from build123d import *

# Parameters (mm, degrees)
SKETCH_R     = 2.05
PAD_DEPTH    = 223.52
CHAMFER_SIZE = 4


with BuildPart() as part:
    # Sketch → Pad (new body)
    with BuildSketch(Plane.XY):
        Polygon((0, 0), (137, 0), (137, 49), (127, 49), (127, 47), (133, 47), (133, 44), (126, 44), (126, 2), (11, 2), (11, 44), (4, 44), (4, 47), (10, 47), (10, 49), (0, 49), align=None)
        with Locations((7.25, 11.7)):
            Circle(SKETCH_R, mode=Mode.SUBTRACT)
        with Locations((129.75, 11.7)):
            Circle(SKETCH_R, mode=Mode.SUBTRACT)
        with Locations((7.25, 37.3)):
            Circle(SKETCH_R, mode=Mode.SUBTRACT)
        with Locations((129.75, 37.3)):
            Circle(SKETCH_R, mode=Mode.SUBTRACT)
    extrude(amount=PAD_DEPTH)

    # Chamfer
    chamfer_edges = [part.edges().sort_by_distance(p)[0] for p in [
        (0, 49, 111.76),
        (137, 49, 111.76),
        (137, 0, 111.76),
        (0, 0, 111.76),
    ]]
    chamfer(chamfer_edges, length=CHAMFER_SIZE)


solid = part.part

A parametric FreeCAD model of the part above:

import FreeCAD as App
import Part
import Sketcher

V = App.Vector


def edges_at(feature, points):
    """Names of the edges that pass closest to the given points."""
    edges = feature.Shape.Edges
    near = lambda p: min(range(len(edges)), key=lambda i: edges[i].distToShape(Part.Vertex(*p))[0])
    return sorted({f"Edge{near(p) + 1}" for p in points})

doc = App.newDocument("Part")
body = doc.addObject("PartDesign::Body", "Body")

# Sketch on XY plane
sketch1 = doc.addObject("Sketcher::SketchObject", "Sketch")
body.addObject(sketch1)
sketch1.AttachmentSupport = (doc.XY_Plane, [""])
sketch1.MapMode = "FlatFace"
sketch1.addGeometry(Part.LineSegment(V(0, 0, 0), V(137, 0, 0)), False)
sketch1.addGeometry(Part.LineSegment(V(137, 0, 0), V(137, 49, 0)), False)
sketch1.addGeometry(Part.LineSegment(V(137, 49, 0), V(127, 49, 0)), False)
sketch1.addGeometry(Part.LineSegment(V(127, 49, 0), V(127, 47, 0)), False)
sketch1.addGeometry(Part.LineSegment(V(127, 47, 0), V(133, 47, 0)), False)
sketch1.addGeometry(Part.LineSegment(V(133, 47, 0), V(133, 44, 0)), False)
sketch1.addGeometry(Part.LineSegment(V(133, 44, 0), V(126, 44, 0)), False)
sketch1.addGeometry(Part.LineSegment(V(126, 44, 0), V(126, 2, 0)), False)
sketch1.addGeometry(Part.LineSegment(V(126, 2, 0), V(11, 2, 0)), False)
sketch1.addGeometry(Part.LineSegment(V(11, 2, 0), V(11, 44, 0)), False)
sketch1.addGeometry(Part.LineSegment(V(11, 44, 0), V(4, 44, 0)), False)
sketch1.addGeometry(Part.LineSegment(V(4, 44, 0), V(4, 47, 0)), False)
sketch1.addGeometry(Part.LineSegment(V(4, 47, 0), V(10, 47, 0)), False)
sketch1.addGeometry(Part.LineSegment(V(10, 47, 0), V(10, 49, 0)), False)
sketch1.addGeometry(Part.LineSegment(V(10, 49, 0), V(0, 49, 0)), False)
sketch1.addGeometry(Part.LineSegment(V(0, 49, 0), V(0, 0, 0)), False)
sketch1.addGeometry(Part.Circle(V(7.2, 11.7, 0), V(0, 0, 1), 2), False)
sketch1.addGeometry(Part.Circle(V(129.8, 11.7, 0), V(0, 0, 1), 2), False)
sketch1.addGeometry(Part.Circle(V(7.2, 37.3, 0), V(0, 0, 1), 2), False)
sketch1.addGeometry(Part.Circle(V(129.8, 37.3, 0), V(0, 0, 1), 2), False)
sketch1.addConstraint(Sketcher.Constraint("Coincident", 0, 2, 1, 1))
sketch1.addConstraint(Sketcher.Constraint("Coincident", 1, 2, 2, 1))
sketch1.addConstraint(Sketcher.Constraint("Coincident", 2, 2, 3, 1))
sketch1.addConstraint(Sketcher.Constraint("Coincident", 3, 2, 4, 1))
sketch1.addConstraint(Sketcher.Constraint("Coincident", 4, 2, 5, 1))
sketch1.addConstraint(Sketcher.Constraint("Coincident", 5, 2, 6, 1))
sketch1.addConstraint(Sketcher.Constraint("Coincident", 6, 2, 7, 1))
sketch1.addConstraint(Sketcher.Constraint("Coincident", 7, 2, 8, 1))
sketch1.addConstraint(Sketcher.Constraint("Coincident", 8, 2, 9, 1))
sketch1.addConstraint(Sketcher.Constraint("Coincident", 9, 2, 10, 1))
sketch1.addConstraint(Sketcher.Constraint("Coincident", 10, 2, 11, 1))
sketch1.addConstraint(Sketcher.Constraint("Coincident", 11, 2, 12, 1))
sketch1.addConstraint(Sketcher.Constraint("Coincident", 12, 2, 13, 1))
sketch1.addConstraint(Sketcher.Constraint("Coincident", 13, 2, 14, 1))
sketch1.addConstraint(Sketcher.Constraint("Coincident", 14, 2, 15, 1))
sketch1.addConstraint(Sketcher.Constraint("Coincident", 15, 2, 0, 1))
sketch1.addConstraint(Sketcher.Constraint("Horizontal", 0))
sketch1.addConstraint(Sketcher.Constraint("Vertical", 1))
sketch1.addConstraint(Sketcher.Constraint("Horizontal", 2))
sketch1.addConstraint(Sketcher.Constraint("Vertical", 3))
sketch1.addConstraint(Sketcher.Constraint("Horizontal", 4))
sketch1.addConstraint(Sketcher.Constraint("Vertical", 5))
sketch1.addConstraint(Sketcher.Constraint("Horizontal", 6))
sketch1.addConstraint(Sketcher.Constraint("Vertical", 7))
sketch1.addConstraint(Sketcher.Constraint("Horizontal", 8))
sketch1.addConstraint(Sketcher.Constraint("Vertical", 9))
sketch1.addConstraint(Sketcher.Constraint("Horizontal", 10))
sketch1.addConstraint(Sketcher.Constraint("Vertical", 11))
sketch1.addConstraint(Sketcher.Constraint("Horizontal", 12))
sketch1.addConstraint(Sketcher.Constraint("Vertical", 13))
sketch1.addConstraint(Sketcher.Constraint("Horizontal", 14))
sketch1.addConstraint(Sketcher.Constraint("Vertical", 15))
sketch1.addConstraint(Sketcher.Constraint("Coincident", 15, 2, -1, 1))
sketch1.addConstraint(Sketcher.Constraint("Equal", 16, 17))
sketch1.addConstraint(Sketcher.Constraint("Equal", 17, 18))
sketch1.addConstraint(Sketcher.Constraint("Equal", 18, 19))
sketch1.addConstraint(Sketcher.Constraint("Horizontal", 16, 3, 17, 3))
sketch1.addConstraint(Sketcher.Constraint("Horizontal", 18, 3, 19, 3))
sketch1.addConstraint(Sketcher.Constraint("Horizontal", 6, 2, 9, 2))
sketch1.addConstraint(Sketcher.Constraint("Horizontal", 4, 2, 11, 2))
sketch1.addConstraint(Sketcher.Constraint("Horizontal", 2, 2, 13, 2))
sketch1.addConstraint(Sketcher.Constraint("Vertical", 16, 3, 18, 3))
sketch1.addConstraint(Sketcher.Constraint("Vertical", 17, 3, 19, 3))
sketch1.addConstraint(Sketcher.Constraint("Equal", 6, 10))
sketch1.addConstraint(Sketcher.Constraint("Equal", 4, 12))
sketch1.addConstraint(Sketcher.Constraint("Equal", 2, 14))
sketch1.addConstraint(Sketcher.Constraint("Diameter", 16, 4.1))
sketch1.addConstraint(Sketcher.Constraint("DistanceX", 0, 1, 0, 2, 137.0))
sketch1.addConstraint(Sketcher.Constraint("DistanceX", 2, 2, 2, 1, 10.0))
sketch1.addConstraint(Sketcher.Constraint("DistanceX", 4, 1, 4, 2, 6.0))
sketch1.addConstraint(Sketcher.Constraint("DistanceX", 6, 2, 6, 1, 7.0))
sketch1.addConstraint(Sketcher.Constraint("DistanceY", 1, 1, 1, 2, 49.0))
sketch1.addConstraint(Sketcher.Constraint("DistanceY", 3, 2, 3, 1, 2.0))
sketch1.addConstraint(Sketcher.Constraint("DistanceY", 5, 2, 5, 1, 3.0))
sketch1.addConstraint(Sketcher.Constraint("DistanceY", 7, 2, 7, 1, 42.0))
sketch1.addConstraint(Sketcher.Constraint("DistanceY", -1, 1, 16, 3, 11.7))
sketch1.addConstraint(Sketcher.Constraint("DistanceY", -1, 1, 18, 3, 37.3))
sketch1.addConstraint(Sketcher.Constraint("DistanceX", 16, 3, 17, 3, 122.5))
sketch1.addConstraint(Sketcher.Constraint("DistanceX", -1, 1, 16, 3, 7.25))
pad1 = doc.addObject("PartDesign::Pad", "Pad")
body.addObject(pad1)
pad1.Profile = sketch1
pad1.Length = 223.52
doc.recompute()

chamfer = doc.addObject("PartDesign::Chamfer", "Chamfer")
body.addObject(chamfer)
chamfer.Base = (pad1, edges_at(pad1, [
    (0, 49, 111.76),
    (137, 49, 111.76),
    (137, 0, 111.76),
    (0, 0, 111.76),
]))
chamfer.Size = 4

doc.recompute()
